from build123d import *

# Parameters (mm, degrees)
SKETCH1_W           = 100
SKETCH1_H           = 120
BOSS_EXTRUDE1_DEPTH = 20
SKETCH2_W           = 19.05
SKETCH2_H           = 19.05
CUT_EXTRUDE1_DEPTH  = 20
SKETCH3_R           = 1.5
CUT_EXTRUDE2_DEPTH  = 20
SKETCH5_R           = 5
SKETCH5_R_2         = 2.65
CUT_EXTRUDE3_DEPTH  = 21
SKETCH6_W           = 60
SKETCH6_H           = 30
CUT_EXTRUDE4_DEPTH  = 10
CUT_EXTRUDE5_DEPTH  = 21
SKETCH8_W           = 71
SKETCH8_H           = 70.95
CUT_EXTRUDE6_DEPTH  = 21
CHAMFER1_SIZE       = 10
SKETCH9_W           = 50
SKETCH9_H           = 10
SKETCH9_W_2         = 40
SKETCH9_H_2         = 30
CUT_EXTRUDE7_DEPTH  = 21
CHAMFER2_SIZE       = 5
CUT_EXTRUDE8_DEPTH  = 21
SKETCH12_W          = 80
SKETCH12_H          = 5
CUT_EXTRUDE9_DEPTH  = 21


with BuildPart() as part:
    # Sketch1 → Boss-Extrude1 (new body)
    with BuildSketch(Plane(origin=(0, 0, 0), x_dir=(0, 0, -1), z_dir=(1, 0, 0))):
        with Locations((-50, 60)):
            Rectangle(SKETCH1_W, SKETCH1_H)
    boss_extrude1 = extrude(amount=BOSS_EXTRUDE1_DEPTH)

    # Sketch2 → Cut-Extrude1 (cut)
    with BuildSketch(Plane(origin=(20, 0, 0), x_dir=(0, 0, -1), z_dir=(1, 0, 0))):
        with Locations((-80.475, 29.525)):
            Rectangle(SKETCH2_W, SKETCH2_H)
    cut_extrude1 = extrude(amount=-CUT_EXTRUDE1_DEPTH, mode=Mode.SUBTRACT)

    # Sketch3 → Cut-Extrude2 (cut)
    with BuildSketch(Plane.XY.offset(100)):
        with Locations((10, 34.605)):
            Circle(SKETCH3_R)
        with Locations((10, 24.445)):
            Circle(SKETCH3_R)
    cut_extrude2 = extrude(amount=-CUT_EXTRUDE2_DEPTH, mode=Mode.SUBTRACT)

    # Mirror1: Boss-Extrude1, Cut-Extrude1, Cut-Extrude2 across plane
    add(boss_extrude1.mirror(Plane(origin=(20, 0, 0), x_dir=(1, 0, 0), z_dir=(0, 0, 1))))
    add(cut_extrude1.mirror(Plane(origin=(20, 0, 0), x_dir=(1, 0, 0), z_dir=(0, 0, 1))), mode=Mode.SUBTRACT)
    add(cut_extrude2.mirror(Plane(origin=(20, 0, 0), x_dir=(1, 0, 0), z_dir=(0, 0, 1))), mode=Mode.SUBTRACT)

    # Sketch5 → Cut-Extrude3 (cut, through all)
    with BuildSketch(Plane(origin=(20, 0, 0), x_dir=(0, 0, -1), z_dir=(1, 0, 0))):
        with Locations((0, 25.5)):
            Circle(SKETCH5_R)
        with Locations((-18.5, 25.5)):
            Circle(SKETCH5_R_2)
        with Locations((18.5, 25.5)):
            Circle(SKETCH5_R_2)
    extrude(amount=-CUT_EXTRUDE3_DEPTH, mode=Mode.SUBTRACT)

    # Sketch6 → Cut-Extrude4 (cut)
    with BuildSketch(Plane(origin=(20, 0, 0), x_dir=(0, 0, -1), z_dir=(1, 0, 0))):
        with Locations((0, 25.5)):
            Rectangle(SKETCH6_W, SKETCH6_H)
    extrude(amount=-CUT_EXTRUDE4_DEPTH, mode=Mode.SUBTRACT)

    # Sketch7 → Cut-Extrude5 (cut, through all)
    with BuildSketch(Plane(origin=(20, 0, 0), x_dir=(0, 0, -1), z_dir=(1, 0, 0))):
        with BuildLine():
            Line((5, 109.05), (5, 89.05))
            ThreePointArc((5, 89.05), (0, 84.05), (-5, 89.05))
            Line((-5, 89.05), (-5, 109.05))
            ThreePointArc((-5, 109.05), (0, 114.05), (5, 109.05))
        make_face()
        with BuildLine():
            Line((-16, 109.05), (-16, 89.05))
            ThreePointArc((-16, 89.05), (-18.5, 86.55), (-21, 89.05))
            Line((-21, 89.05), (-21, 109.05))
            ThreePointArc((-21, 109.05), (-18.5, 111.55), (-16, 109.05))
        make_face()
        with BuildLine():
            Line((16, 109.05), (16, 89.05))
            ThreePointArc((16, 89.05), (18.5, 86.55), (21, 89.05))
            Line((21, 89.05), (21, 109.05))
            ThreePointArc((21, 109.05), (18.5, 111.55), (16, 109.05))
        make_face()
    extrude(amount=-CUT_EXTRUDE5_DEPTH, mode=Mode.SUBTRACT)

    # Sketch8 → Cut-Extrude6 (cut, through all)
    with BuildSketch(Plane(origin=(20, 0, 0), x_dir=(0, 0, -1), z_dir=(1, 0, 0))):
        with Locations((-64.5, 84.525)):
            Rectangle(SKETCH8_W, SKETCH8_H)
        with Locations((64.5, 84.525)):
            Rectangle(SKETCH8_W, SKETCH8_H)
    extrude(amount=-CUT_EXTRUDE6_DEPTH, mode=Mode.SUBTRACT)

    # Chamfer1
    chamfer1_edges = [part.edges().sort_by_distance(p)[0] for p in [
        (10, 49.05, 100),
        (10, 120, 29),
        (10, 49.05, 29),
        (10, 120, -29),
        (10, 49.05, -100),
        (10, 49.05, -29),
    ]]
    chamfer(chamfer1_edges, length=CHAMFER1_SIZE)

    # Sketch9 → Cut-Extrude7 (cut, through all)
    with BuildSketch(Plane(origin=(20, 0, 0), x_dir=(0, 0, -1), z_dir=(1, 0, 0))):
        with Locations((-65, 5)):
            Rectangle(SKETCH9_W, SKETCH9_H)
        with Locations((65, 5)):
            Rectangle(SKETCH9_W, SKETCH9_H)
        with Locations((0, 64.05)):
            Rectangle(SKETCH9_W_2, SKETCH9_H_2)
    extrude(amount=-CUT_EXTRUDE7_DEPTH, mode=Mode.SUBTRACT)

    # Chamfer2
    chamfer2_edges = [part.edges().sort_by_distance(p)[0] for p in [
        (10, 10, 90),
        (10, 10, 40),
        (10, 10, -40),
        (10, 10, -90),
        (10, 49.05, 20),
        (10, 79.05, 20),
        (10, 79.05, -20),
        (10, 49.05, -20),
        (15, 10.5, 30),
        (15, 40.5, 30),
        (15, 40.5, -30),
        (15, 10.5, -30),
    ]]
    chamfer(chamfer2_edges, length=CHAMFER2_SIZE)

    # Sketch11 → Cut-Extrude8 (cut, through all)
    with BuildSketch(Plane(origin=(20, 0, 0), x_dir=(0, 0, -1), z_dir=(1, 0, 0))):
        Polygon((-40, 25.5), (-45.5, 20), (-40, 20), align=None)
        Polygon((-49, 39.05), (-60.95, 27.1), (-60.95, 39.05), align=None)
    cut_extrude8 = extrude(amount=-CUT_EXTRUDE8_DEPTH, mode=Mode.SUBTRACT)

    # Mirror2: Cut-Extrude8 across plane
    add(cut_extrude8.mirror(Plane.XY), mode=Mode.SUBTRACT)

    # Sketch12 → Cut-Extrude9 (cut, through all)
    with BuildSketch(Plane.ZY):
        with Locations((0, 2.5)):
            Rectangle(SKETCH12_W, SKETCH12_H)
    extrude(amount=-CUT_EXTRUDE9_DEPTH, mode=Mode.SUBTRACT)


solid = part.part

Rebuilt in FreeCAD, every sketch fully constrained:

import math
import FreeCAD as App
import Part
import Sketcher
from FreeCAD import Vector


def edges_at(feature, points):
    """Names of the edges that pass closest to the given points."""
    edges = feature.Shape.Edges
    near = lambda p: min(range(len(edges)), key=lambda i: edges[i].distToShape(Part.Vertex(*p))[0])
    return sorted({f"Edge{near(p) + 1}" for p in points})


def add_polygon(sketch, points):
    """Adds a closed chain of lines whose ends are joined by coincident constraints."""
    first, n = sketch.GeometryCount, len(points)
    for a, b in zip(points, points[1:] + points[:1]):
        sketch.addGeometry(Part.LineSegment(App.Vector(*a, 0), App.Vector(*b, 0)), False)
    for i in range(n):
        sketch.addConstraint(Sketcher.Constraint("Coincident", first + i, 2, first + (i + 1) % n, 1))

doc = App.newDocument("Part")
body = doc.addObject("PartDesign::Body", "Body")

sketch1 = doc.addObject("Sketcher::SketchObject", "Sketch")
body.addObject(sketch1)
sketch1.AttachmentSupport = (doc.YZ_Plane, [""])
sketch1.MapMode = "FlatFace"
add_polygon(sketch1, [(120, 100), (0, 100), (0, 0), (120, 0)])
sketch1.addConstraint([
    Sketcher.Constraint("Horizontal", 0),
    Sketcher.Constraint("Vertical", 1),
    Sketcher.Constraint("Horizontal", 2),
    Sketcher.Constraint("Vertical", 3),
    Sketcher.Constraint("Coincident", 1, 2, -1, 1),
    Sketcher.Constraint("DistanceX", 0, 2, 0, 1, 120.0),
    Sketcher.Constraint("DistanceY", 1, 2, 1, 1, 100.0),
])
pad1 = doc.addObject("PartDesign::Pad", "Pad")
body.addObject(pad1)
pad1.Profile = sketch1
pad1.Length = 20

sketch2 = doc.addObject("Sketcher::SketchObject", "Sketch001")
body.addObject(sketch2)
sketch2.AttachmentSupport = (doc.YZ_Plane, [""])
sketch2.MapMode = "FlatFace"
sketch2.AttachmentOffset = App.Placement(Vector(0, 0, 20), App.Rotation())
add_polygon(sketch2, [(39, 90), (20, 90), (20, 71), (39, 71)])
sketch2.addConstraint([
    Sketcher.Constraint("Horizontal", 0),
    Sketcher.Constraint("Vertical", 1),
    Sketcher.Constraint("Horizontal", 2),
    Sketcher.Constraint("Vertical", 3),
    Sketcher.Constraint("Equal", 2, 1),
    Sketcher.Constraint("DistanceX", -1, 1, 0, 2, 20.0),
    Sketcher.Constraint("DistanceY", -1, 1, 0, 2, 90.0),
    Sketcher.Constraint("DistanceX", 0, 2, 0, 1, 19.05),
])
pocket1 = doc.addObject("PartDesign::Pocket", "Pocket")
body.addObject(pocket1)
pocket1.Profile = sketch2
pocket1.Length = 20

sketch3 = doc.addObject("Sketcher::SketchObject", "Sketch002")
body.addObject(sketch3)
sketch3.AttachmentSupport = (doc.XY_Plane, [""])
sketch3.MapMode = "FlatFace"
sketch3.AttachmentOffset = App.Placement(Vector(0, 0, 100), App.Rotation())
sketch3.addGeometry([
    Part.Circle(Vector(10, 34.6, 0), Vector(0, 0, 1), 1.5),
    Part.Circle(Vector(10, 24.4, 0), Vector(0, 0, 1), 1.5),
], False)
sketch3.addConstraint([
    Sketcher.Constraint("Equal", 0, 1),
    Sketcher.Constraint("Vertical", 0, 3, 1, 3),
    Sketcher.Constraint("Diameter", 0, 3.0),
    Sketcher.Constraint("DistanceX", -1, 1, 0, 3, 10.0),
    Sketcher.Constraint("DistanceY", 1, 3, 0, 3, 10.16),
    Sketcher.Constraint("DistanceY", -1, 1, 0, 3, 34.605),
])
pocket2 = doc.addObject("PartDesign::Pocket", "Pocket001")
body.addObject(pocket2)
pocket2.Profile = sketch3
pocket2.Length = 20
doc.recompute()

mirrored = doc.addObject("PartDesign::Mirrored", "Mirrored")
body.addObject(mirrored)
mirrored.Originals = [pad1, pocket1, pocket2]
mirrored.MirrorPlane = (doc.XY_Plane, [""])
body.Tip = mirrored

sketch4 = doc.addObject("Sketcher::SketchObject", "Sketch003")
body.addObject(sketch4)
sketch4.AttachmentSupport = (doc.YZ_Plane, [""])
sketch4.MapMode = "FlatFace"
sketch4.AttachmentOffset = App.Placement(Vector(0, 0, 20), App.Rotation())
sketch4.addGeometry([
    Part.Circle(Vector(25.5, 0, 0), Vector(0, 0, 1), 5),
    Part.Circle(Vector(25.5, 18.5, 0), Vector(0, 0, 1), 2.6),
    Part.Circle(Vector(25.5, -18.5, 0), Vector(0, 0, 1), 2.6),
], False)
sketch4.addConstraint([
    Sketcher.Constraint("Equal", 1, 2),
    Sketcher.Constraint("Symmetric", 1, 3, 2, 3, -1),
    Sketcher.Constraint("PointOnObject", 0, 3, -1),
    Sketcher.Constraint("Vertical", 0, 3, 1, 3),
    Sketcher.Constraint("Diameter", 0, 10.0),
    Sketcher.Constraint("Diameter", 1, 5.3),
    Sketcher.Constraint("DistanceY", 2, 3, 1, 3, 37.0),
    Sketcher.Constraint("DistanceX", -1, 1, 0, 3, 25.5),
])
pocket3 = doc.addObject("PartDesign::Pocket", "Pocket002")
body.addObject(pocket3)
pocket3.Profile = sketch4
pocket3.Type = "ThroughAll"

sketch5 = doc.addObject("Sketcher::SketchObject", "Sketch004")
body.addObject(sketch5)
sketch5.AttachmentSupport = (doc.YZ_Plane, [""])
sketch5.MapMode = "FlatFace"
sketch5.AttachmentOffset = App.Placement(Vector(0, 0, 20), App.Rotation())
add_polygon(sketch5, [(40, 30), (10, 30), (10, -30), (40, -30)])
sketch5.addConstraint([
    Sketcher.Constraint("Horizontal", 0),
    Sketcher.Constraint("Vertical", 1),
    Sketcher.Constraint("Horizontal", 2),
    Sketcher.Constraint("Vertical", 3),
    Sketcher.Constraint("DistanceX", 0, 2, 0, 1, 30.0),
    Sketcher.Constraint("DistanceY", 1, 2, 1, 1, 60.0),
    Sketcher.Constraint("DistanceY", -1, 1, 0, 2, 30.0),
    Sketcher.Constraint("DistanceX", -1, 1, 0, 2, 10.5),
])
pocket4 = doc.addObject("PartDesign::Pocket", "Pocket003")
body.addObject(pocket4)
pocket4.Profile = sketch5
pocket4.Length = 10

sketch6 = doc.addObject("Sketcher::SketchObject", "Sketch005")
body.addObject(sketch6)
sketch6.AttachmentSupport = (doc.YZ_Plane, [""])
sketch6.MapMode = "FlatFace"
sketch6.AttachmentOffset = App.Placement(Vector(0, 0, 20), App.Rotation())
sketch6.addGeometry([
    Part.LineSegment(Vector(89, -5, 0), Vector(109, -5, 0)),
    Part.ArcOfCircle(Part.Circle(Vector(109, 0, 0), Vector(0, 0, 1), 5), math.radians(-90), math.radians(90)),
    Part.LineSegment(Vector(109, 5, 0), Vector(89, 5, 0)),
    Part.ArcOfCircle(Part.Circle(Vector(89, 0, 0), Vector(0, 0, 1), 5), math.radians(90), math.radians(270)),
    Part.LineSegment(Vector(89, 16, 0), Vector(109, 16, 0)),
    Part.ArcOfCircle(Part.Circle(Vector(109, 18.5, 0), Vector(0, 0, 1), 2.5), math.radians(-90), math.radians(90)),
    Part.LineSegment(Vector(109, 21, 0), Vector(89, 21, 0)),
    Part.ArcOfCircle(Part.Circle(Vector(89, 18.5, 0), Vector(0, 0, 1), 2.5), math.radians(90), math.radians(270)),
    Part.LineSegment(Vector(109, -16, 0), Vector(89, -16, 0)),
    Part.ArcOfCircle(Part.Circle(Vector(89, -18.5, 0), Vector(0, 0, 1), 2.5), math.radians(90), math.radians(270)),
    Part.LineSegment(Vector(89, -21, 0), Vector(109, -21, 0)),
    Part.ArcOfCircle(Part.Circle(Vector(109, -18.5, 0), Vector(0, 0, 1), 2.5), math.radians(-90), math.radians(90)),
], False)
sketch6.addConstraint([
    Sketcher.Constraint("Tangent", 0, 2, 1, 1),
    Sketcher.Constraint("Tangent", 1, 2, 2, 1),
    Sketcher.Constraint("Tangent", 2, 2, 3, 1),
    Sketcher.Constraint("Tangent", 3, 2, 0, 1),
    Sketcher.Constraint("Tangent", 4, 2, 5, 1),
    Sketcher.Constraint("Tangent", 5, 2, 6, 1),
    Sketcher.Constraint("Tangent", 6, 2, 7, 1),
    Sketcher.Constraint("Tangent", 7, 2, 4, 1),
    Sketcher.Constraint("Tangent", 8, 2, 9, 1),
    Sketcher.Constraint("Tangent", 9, 2, 10, 1),
    Sketcher.Constraint("Tangent", 10, 2, 11, 1),
    Sketcher.Constraint("Tangent", 11, 2, 8, 1),
    Sketcher.Constraint("Horizontal", 0),
    Sketcher.Constraint("Horizontal", 2),
    Sketcher.Constraint("Horizontal", 4),
    Sketcher.Constraint("Horizontal", 6),
    Sketcher.Constraint("Horizontal", 8),
    Sketcher.Constraint("Horizontal", 10),
    Sketcher.Constraint("Equal", 7, 9),
    Sketcher.Constraint("Symmetric", 7, 3, 9, 3, -1),
    Sketcher.Constraint("PointOnObject", 1, 3, -1),
    Sketcher.Constraint("Vertical", 1, 3, 5, 3),
    Sketcher.Constraint("Vertical", 3, 3, 7, 3),
    Sketcher.Constraint("Vertical", 5, 3, 11, 3),
    Sketcher.Constraint("Radius", 1, 5.0),
    Sketcher.Constraint("Radius", 5, 2.5),
    Sketcher.Constraint("DistanceX", 0, 1, 0, 2, 20.0),
    Sketcher.Constraint("DistanceY", -1, 1, 4, 2, 16.0),
    Sketcher.Constraint("DistanceX", -1, 1, 1, 3, 109.05),
])
pocket5 = doc.addObject("PartDesign::Pocket", "Pocket004")
body.addObject(pocket5)
pocket5.Profile = sketch6
pocket5.Type = "ThroughAll"

sketch7 = doc.addObject("Sketcher::SketchObject", "Sketch006")
body.addObject(sketch7)
sketch7.AttachmentSupport = (doc.YZ_Plane, [""])
sketch7.MapMode = "FlatFace"
sketch7.AttachmentOffset = App.Placement(Vector(0, 0, 20), App.Rotation())
add_polygon(sketch7, [(120, 100), (49, 100), (49, 29), (120, 29)])
add_polygon(sketch7, [(120, -29), (49, -29), (49, -100), (120, -100)])
sketch7.addConstraint([
    Sketcher.Constraint("Horizontal", 0),
    Sketcher.Constraint("Vertical", 1),
    Sketcher.Constraint("Horizontal", 2),
    Sketcher.Constraint("Vertical", 3),
    Sketcher.Constraint("Horizontal", 4),
    Sketcher.Constraint("Vertical", 5),
    Sketcher.Constraint("Horizontal", 6),
    Sketcher.Constraint("Vertical", 7),
    Sketcher.Constraint("Symmetric", 1, 2, 4, 2, -1),
    Sketcher.Constraint("Symmetric", 3, 2, 6, 2, -1),
    Sketcher.Constraint("DistanceY", 1, 2, 1, 1, 71.0),
    Sketcher.Constraint("DistanceY", -1, 1, 0, 2, 100.0),
    Sketcher.Constraint("DistanceX", -1, 1, 2, 2, 120.0),
    Sketcher.Constraint("DistanceX", 0, 2, 0, 1, 70.95),
])
pocket6 = doc.addObject("PartDesign::Pocket", "Pocket005")
body.addObject(pocket6)
pocket6.Profile = sketch7
pocket6.Type = "ThroughAll"
doc.recompute()

chamfer = doc.addObject("PartDesign::Chamfer", "Chamfer")
body.addObject(chamfer)
chamfer.Base = (pocket6, edges_at(pocket6, [
    (10, 49.05, 100),
    (10, 120, 29),
    (10, 49.05, 29),
    (10, 120, -29),
    (10, 49.05, -100),
    (10, 49.05, -29),
]))
chamfer.Size = 10

sketch8 = doc.addObject("Sketcher::SketchObject", "Sketch007")
body.addObject(sketch8)
sketch8.AttachmentSupport = (doc.YZ_Plane, [""])
sketch8.MapMode = "FlatFace"
sketch8.AttachmentOffset = App.Placement(Vector(0, 0, 20), App.Rotation())
add_polygon(sketch8, [(10, 90), (0, 90), (0, 40), (10, 40)])
add_polygon(sketch8, [(10, -40), (0, -40), (0, -90), (10, -90)])
add_polygon(sketch8, [(79, 20), (49, 20), (49, -20), (79, -20)])
sketch8.addConstraint([
    Sketcher.Constraint("Horizontal", 0),
    Sketcher.Constraint("Vertical", 1),
    Sketcher.Constraint("Horizontal", 2),
    Sketcher.Constraint("Vertical", 3),
    Sketcher.Constraint("Horizontal", 4),
    Sketcher.Constraint("Vertical", 5),
    Sketcher.Constraint("Horizontal", 6),
    Sketcher.Constraint("Vertical", 7),
    Sketcher.Constraint("Horizontal", 8),
    Sketcher.Constraint("Vertical", 9),
    Sketcher.Constraint("Horizontal", 10),
    Sketcher.Constraint("Vertical", 11),
    Sketcher.Constraint("Symmetric", 1, 2, 4, 2, -1, 1),
    Sketcher.Constraint("Symmetric", 0, 2, 5, 2, -1),
    Sketcher.Constraint("Vertical", 3, 2, 6, 2),
    Sketcher.Constraint("DistanceX", 0, 2, 0, 1, 10.0),
    Sketcher.Constraint("DistanceX", 8, 2, 8, 1, 30.0),
    Sketcher.Constraint("DistanceY", 1, 2, 1, 1, 50.0),
    Sketcher.Constraint("DistanceY", 9, 2, 9, 1, 40.0),
    Sketcher.Constraint("DistanceY", -1, 1, 0, 2, 90.0),
    Sketcher.Constraint("DistanceY", -1, 1, 8, 2, 20.0),
    Sketcher.Constraint("DistanceX", -1, 1, 8, 2, 49.05),
])
pocket7 = doc.addObject("PartDesign::Pocket", "Pocket006")
body.addObject(pocket7)
pocket7.Profile = sketch8
pocket7.Type = "ThroughAll"
doc.recompute()

chamfer2 = doc.addObject("PartDesign::Chamfer", "Chamfer001")
body.addObject(chamfer2)
chamfer2.Base = (pocket7, edges_at(pocket7, [
    (10, 10, 90),
    (10, 10, 40),
    (10, 10, -40),
    (10, 10, -90),
    (10, 49.05, 20),
    (10, 79.05, 20),
    (10, 79.05, -20),
    (10, 49.05, -20),
    (15, 10.5, 30),
    (15, 40.5, 30),
    (15, 40.5, -30),
    (15, 10.5, -30),
]))
chamfer2.Size = 5

sketch9 = doc.addObject("Sketcher::SketchObject", "Sketch008")
body.addObject(sketch9)
sketch9.AttachmentSupport = (doc.YZ_Plane, [""])
sketch9.MapMode = "FlatFace"
sketch9.AttachmentOffset = App.Placement(Vector(0, 0, 20), App.Rotation())
add_polygon(sketch9, [(26, 40), (20, 46), (20, 40)])
add_polygon(sketch9, [(27, 61), (39, 49), (39, 61)])
sketch9.addConstraint([
    Sketcher.Constraint("Vertical", 1),
    Sketcher.Constraint("Horizontal", 2),
    Sketcher.Constraint("Vertical", 4),
    Sketcher.Constraint("Horizontal", 5),
    Sketcher.Constraint("Parallel", 0, 3),
    Sketcher.Constraint("Equal", 2, 1),
    Sketcher.Constraint("DistanceX", 2, 1, 2, 2, 5.5),
    Sketcher.Constraint("DistanceX", -1, 1, 0, 2, 20.0),
    Sketcher.Constraint("DistanceY", -1, 1, 1, 2, 40.0),
    Sketcher.Constraint("DistanceY", -1, 1, 3, 2, 49.0),
    Sketcher.Constraint("DistanceX", 5, 2, 5, 1, 11.95),
    Sketcher.Constraint("DistanceX", -1, 1, 5, 2, 27.1),
])
pocket8 = doc.addObject("PartDesign::Pocket", "Pocket007")
body.addObject(pocket8)
pocket8.Profile = sketch9
pocket8.Type = "ThroughAll"
doc.recompute()

mirrored2 = doc.addObject("PartDesign::Mirrored", "Mirrored001")
body.addObject(mirrored2)
mirrored2.Originals = [pocket8]
mirrored2.MirrorPlane = (doc.XY_Plane, [""])
body.Tip = mirrored2

sketch10 = doc.addObject("Sketcher::SketchObject", "Sketch009")
body.addObject(sketch10)
sketch10.AttachmentSupport = (doc.YZ_Plane, [""])
sketch10.MapMode = "FlatFace"
add_polygon(sketch10, [(5, -40), (0, -40), (0, 40), (5, 40)])
sketch10.addConstraint([
    Sketcher.Constraint("Horizontal", 0),
    Sketcher.Constraint("Vertical", 1),
    Sketcher.Constraint("Horizontal", 2),
    Sketcher.Constraint("Vertical", 3),
    Sketcher.Constraint("Symmetric", 0, 2, 1, 2, -1, 1),
    Sketcher.Constraint("DistanceX", 0, 2, 0, 1, 5.0),
    Sketcher.Constraint("DistanceY", 1, 1, 1, 2, 80.0),
])
pocket9 = doc.addObject("PartDesign::Pocket", "Pocket008")
body.addObject(pocket9)
pocket9.Profile = sketch10
pocket9.Type = "ThroughAll"
pocket9.Reversed = True

doc.recompute()
